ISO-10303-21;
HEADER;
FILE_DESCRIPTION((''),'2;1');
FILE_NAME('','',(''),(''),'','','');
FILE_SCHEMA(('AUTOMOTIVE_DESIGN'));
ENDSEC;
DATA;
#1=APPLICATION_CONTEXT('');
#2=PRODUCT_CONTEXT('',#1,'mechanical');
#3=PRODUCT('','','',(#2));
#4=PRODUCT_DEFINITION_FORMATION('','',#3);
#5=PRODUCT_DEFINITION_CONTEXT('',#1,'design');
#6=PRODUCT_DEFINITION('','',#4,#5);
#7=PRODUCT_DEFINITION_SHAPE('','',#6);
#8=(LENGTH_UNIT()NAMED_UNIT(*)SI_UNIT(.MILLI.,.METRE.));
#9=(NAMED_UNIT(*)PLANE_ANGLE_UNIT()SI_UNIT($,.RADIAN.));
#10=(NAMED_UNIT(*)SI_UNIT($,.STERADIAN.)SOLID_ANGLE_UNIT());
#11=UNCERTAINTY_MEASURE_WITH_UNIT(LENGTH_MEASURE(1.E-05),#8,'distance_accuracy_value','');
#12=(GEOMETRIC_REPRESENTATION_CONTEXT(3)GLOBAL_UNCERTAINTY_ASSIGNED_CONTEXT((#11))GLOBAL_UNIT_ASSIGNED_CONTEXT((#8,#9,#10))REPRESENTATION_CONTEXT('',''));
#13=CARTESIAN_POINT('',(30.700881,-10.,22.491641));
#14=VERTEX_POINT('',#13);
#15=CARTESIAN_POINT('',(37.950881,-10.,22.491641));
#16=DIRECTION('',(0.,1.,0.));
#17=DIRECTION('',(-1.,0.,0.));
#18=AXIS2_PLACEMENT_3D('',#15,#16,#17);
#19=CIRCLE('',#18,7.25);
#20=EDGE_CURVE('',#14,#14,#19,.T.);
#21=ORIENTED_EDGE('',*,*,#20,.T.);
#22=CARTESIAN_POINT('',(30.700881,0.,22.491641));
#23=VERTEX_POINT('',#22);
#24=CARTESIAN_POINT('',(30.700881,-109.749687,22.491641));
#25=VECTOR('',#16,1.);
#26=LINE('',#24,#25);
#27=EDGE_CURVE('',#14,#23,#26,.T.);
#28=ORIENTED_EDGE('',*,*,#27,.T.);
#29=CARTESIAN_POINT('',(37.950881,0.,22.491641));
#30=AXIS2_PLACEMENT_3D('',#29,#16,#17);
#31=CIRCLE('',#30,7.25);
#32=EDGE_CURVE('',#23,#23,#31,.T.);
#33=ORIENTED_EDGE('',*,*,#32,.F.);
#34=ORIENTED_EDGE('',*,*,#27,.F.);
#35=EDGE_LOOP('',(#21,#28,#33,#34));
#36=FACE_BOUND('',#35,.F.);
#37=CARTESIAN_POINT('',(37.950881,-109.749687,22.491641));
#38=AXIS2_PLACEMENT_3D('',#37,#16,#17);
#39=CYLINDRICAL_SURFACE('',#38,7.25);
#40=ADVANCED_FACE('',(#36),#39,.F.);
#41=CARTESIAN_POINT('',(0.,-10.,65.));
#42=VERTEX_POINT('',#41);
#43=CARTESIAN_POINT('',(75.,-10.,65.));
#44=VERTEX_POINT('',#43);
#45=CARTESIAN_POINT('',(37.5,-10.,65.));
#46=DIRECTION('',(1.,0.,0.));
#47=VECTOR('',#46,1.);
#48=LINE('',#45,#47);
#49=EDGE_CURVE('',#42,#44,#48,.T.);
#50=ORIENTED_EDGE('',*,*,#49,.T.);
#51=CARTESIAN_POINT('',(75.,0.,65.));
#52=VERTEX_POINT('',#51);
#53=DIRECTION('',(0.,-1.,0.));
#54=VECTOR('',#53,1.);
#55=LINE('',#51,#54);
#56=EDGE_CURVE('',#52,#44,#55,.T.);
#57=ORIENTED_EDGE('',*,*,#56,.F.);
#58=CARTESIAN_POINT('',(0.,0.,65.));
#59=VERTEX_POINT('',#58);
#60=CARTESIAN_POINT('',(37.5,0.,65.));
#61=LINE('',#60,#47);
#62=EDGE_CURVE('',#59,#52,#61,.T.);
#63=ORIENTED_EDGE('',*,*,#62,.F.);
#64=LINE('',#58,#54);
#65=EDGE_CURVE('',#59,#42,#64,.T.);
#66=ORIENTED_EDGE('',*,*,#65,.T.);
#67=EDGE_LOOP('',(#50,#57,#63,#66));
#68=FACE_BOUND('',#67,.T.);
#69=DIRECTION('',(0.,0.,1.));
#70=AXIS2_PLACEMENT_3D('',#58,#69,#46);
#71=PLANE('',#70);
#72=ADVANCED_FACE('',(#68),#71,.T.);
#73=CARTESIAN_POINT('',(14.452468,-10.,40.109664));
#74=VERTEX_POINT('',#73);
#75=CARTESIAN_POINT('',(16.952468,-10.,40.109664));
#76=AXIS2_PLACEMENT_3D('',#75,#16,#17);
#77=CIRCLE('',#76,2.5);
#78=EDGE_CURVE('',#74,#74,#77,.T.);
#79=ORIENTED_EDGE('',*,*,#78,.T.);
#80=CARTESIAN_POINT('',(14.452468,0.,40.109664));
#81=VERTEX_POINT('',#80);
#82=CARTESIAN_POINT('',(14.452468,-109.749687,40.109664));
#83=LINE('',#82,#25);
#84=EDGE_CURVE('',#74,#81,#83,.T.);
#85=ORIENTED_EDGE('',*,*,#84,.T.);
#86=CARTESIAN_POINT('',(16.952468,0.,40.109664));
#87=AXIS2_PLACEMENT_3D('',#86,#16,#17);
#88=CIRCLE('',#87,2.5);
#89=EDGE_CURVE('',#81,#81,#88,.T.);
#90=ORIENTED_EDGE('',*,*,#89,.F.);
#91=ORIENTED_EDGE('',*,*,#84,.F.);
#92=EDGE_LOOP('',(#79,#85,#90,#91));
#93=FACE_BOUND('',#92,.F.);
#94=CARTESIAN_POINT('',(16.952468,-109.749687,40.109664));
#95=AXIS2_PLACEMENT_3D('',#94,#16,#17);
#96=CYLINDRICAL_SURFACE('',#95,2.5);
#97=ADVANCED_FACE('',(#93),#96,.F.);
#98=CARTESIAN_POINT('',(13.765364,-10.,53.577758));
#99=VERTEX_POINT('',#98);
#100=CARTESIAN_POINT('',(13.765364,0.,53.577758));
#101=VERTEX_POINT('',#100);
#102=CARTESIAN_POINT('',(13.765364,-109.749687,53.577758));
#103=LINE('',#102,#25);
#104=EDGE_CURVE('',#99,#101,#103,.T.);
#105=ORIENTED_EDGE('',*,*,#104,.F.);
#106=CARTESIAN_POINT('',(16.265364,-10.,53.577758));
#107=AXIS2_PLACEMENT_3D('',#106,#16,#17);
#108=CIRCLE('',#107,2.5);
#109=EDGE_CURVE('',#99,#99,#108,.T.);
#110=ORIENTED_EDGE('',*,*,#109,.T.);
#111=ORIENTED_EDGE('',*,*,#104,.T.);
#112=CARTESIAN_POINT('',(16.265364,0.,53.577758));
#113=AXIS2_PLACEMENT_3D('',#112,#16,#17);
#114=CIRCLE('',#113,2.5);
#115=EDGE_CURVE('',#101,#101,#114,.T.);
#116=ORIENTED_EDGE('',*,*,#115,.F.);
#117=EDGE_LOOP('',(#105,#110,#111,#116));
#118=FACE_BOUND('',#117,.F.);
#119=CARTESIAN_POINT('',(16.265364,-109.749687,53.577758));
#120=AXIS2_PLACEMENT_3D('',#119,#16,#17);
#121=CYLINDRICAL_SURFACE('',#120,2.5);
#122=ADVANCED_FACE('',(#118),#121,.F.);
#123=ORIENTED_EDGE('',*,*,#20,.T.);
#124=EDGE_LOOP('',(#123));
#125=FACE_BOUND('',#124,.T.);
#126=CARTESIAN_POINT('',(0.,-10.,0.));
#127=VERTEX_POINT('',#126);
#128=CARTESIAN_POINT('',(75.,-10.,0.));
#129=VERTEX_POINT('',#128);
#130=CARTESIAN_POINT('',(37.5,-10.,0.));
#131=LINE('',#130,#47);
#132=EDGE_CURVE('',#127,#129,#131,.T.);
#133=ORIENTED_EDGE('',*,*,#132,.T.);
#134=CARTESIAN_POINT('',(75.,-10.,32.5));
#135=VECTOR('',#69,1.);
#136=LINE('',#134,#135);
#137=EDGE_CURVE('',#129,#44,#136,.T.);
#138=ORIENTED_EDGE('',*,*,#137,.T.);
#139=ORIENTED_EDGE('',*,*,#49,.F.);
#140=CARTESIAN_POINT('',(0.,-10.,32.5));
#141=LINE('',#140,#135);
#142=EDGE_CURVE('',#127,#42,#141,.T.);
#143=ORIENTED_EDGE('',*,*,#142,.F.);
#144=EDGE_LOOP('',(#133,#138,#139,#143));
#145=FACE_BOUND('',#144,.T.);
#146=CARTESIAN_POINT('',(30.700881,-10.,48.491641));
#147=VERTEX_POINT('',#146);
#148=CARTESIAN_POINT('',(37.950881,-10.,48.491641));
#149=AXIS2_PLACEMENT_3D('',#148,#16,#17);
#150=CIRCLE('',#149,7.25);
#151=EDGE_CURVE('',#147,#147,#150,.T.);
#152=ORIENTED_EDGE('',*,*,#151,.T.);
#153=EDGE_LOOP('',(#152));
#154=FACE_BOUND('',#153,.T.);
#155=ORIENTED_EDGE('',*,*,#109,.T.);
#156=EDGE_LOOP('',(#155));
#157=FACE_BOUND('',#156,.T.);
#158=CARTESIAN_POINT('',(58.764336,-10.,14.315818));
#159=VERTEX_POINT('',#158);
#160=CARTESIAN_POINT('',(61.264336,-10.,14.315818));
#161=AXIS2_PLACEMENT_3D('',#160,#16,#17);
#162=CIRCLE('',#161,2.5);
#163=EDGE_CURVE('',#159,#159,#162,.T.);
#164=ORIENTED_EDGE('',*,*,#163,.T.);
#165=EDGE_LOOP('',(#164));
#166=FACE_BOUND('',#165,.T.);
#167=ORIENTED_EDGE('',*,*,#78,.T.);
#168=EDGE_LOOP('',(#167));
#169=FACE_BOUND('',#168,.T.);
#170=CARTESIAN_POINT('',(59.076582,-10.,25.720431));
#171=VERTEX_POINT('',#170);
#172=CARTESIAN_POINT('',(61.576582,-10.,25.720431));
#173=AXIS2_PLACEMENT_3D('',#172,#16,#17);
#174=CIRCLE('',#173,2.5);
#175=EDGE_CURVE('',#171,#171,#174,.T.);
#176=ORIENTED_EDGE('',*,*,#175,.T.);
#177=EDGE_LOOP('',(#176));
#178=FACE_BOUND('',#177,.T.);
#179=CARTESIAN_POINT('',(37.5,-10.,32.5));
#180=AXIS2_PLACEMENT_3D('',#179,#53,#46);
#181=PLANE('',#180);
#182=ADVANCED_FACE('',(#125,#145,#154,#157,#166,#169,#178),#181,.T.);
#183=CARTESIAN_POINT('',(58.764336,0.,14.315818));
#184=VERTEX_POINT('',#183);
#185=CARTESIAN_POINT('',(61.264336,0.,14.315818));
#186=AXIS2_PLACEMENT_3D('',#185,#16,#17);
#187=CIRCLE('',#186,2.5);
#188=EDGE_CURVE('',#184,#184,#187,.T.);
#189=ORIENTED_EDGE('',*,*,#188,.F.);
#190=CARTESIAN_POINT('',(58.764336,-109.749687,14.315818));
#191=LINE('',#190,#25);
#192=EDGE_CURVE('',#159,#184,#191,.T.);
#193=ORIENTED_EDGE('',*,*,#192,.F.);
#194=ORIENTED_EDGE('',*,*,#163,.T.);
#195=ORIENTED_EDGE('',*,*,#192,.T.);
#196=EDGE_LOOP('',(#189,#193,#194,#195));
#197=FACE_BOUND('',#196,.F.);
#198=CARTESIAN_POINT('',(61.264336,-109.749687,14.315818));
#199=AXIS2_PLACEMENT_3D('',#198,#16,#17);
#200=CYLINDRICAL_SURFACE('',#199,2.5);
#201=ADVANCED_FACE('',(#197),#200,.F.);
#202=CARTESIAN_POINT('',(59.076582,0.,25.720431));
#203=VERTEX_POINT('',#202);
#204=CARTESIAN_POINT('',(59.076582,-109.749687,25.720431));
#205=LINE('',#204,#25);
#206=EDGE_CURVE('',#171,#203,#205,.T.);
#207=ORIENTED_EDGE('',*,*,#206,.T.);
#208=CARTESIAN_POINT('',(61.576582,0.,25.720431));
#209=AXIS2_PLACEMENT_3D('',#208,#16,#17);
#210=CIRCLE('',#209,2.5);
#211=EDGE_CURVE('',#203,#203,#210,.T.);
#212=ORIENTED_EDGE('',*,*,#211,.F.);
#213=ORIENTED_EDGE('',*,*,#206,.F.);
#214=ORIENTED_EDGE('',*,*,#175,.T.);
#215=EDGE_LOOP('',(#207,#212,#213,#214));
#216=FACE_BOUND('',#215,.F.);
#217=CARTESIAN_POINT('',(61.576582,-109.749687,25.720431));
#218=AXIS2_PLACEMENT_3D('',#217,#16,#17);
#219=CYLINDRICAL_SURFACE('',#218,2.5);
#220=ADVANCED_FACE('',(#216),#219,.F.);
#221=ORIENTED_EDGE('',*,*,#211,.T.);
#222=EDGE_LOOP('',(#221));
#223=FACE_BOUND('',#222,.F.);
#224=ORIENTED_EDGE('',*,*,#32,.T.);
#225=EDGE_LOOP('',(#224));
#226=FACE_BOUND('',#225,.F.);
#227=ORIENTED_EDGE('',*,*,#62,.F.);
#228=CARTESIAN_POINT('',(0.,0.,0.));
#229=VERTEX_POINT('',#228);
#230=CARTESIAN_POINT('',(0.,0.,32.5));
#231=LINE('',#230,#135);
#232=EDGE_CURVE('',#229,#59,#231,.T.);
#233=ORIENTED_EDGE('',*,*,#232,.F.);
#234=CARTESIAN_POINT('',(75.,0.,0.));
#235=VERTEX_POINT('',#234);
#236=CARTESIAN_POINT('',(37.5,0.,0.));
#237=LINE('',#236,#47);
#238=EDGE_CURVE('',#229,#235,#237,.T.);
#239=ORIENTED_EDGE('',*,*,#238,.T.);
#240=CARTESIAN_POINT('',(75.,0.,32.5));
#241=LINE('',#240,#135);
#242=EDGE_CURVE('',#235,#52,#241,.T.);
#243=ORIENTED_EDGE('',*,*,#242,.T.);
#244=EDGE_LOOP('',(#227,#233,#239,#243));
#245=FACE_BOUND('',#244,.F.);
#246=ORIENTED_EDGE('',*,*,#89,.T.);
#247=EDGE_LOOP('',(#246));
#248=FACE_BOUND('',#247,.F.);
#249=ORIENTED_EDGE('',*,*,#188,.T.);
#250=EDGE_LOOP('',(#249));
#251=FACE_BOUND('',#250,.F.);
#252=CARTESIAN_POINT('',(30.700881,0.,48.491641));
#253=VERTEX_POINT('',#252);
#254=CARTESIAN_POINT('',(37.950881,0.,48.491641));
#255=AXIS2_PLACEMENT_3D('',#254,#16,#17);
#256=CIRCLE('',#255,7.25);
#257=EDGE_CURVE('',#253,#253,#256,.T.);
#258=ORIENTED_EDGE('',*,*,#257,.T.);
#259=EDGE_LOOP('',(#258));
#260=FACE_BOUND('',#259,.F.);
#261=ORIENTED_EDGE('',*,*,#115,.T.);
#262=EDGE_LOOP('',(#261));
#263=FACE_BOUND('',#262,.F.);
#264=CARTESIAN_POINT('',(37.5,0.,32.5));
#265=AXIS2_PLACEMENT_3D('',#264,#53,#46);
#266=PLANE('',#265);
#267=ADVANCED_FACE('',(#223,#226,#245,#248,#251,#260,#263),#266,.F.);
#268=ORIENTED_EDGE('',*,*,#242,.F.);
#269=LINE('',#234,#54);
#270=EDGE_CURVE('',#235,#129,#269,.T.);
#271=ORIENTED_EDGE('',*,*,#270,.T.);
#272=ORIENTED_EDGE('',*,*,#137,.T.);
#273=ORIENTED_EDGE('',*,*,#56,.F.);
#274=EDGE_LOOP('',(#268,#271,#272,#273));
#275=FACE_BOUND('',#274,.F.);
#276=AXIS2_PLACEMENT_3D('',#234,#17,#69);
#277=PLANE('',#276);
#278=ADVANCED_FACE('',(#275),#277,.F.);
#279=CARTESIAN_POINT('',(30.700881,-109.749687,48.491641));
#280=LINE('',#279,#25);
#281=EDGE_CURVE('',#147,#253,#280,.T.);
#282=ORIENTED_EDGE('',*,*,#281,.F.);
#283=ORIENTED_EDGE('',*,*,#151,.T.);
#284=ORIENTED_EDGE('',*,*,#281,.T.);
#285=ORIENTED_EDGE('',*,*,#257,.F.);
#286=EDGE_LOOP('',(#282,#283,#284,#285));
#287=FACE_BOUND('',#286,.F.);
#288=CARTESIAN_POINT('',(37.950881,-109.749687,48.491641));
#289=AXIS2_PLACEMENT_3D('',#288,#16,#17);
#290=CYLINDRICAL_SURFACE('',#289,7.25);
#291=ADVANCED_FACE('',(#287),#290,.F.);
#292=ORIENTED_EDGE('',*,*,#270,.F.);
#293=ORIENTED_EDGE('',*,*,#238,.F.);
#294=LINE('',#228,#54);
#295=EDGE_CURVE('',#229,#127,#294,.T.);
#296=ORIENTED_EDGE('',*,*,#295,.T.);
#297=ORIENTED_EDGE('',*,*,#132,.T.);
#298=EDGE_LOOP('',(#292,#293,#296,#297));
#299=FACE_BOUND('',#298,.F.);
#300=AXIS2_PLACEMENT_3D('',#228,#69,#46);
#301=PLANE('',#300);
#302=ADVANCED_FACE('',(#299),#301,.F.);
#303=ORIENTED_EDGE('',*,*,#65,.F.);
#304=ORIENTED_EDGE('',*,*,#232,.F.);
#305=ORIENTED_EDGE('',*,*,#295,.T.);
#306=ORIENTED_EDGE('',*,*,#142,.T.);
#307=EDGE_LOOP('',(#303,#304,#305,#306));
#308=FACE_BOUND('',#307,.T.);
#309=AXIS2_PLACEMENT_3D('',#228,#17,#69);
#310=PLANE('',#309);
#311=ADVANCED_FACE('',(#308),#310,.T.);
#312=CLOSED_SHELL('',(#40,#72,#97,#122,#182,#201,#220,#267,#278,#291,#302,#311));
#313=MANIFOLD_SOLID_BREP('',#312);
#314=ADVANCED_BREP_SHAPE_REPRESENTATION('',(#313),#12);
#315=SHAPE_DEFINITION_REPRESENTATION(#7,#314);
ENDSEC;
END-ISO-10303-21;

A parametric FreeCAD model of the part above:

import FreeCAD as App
import Part
import Sketcher
from FreeCAD import Vector

doc = App.newDocument("Part")
body = doc.addObject("PartDesign::Body", "Body")

# Sketch on XZ plane
sketch1 = doc.addObject("Sketcher::SketchObject", "Sketch")
body.addObject(sketch1)
sketch1.AttachmentSupport = (doc.XZ_Plane, [""])
sketch1.MapMode = "FlatFace"
sketch1.addGeometry(Part.LineSegment(Vector(0, 65, 0), Vector(0, 0, 0)), False)
sketch1.addGeometry(Part.LineSegment(Vector(0, 0, 0), Vector(75, 0, 0)), False)
sketch1.addGeometry(Part.LineSegment(Vector(75, 0, 0), Vector(75, 65, 0)), False)
sketch1.addGeometry(Part.LineSegment(Vector(75, 65, 0), Vector(0, 65, 0)), False)
sketch1.addConstraint(Sketcher.Constraint("Coincident", 0, 2, 1, 1))
sketch1.addConstraint(Sketcher.Constraint("Coincident", 1, 2, 2, 1))
sketch1.addConstraint(Sketcher.Constraint("Coincident", 2, 2, 3, 1))
sketch1.addConstraint(Sketcher.Constraint("Coincident", 3, 2, 0, 1))
sketch1.addConstraint(Sketcher.Constraint("Vertical", 0))
sketch1.addConstraint(Sketcher.Constraint("Horizontal", 1))
sketch1.addConstraint(Sketcher.Constraint("Vertical", 2))
sketch1.addConstraint(Sketcher.Constraint("Horizontal", 3))
sketch1.addConstraint(Sketcher.Constraint("Coincident", 0, 2, -1, 1))
sketch1.addConstraint(Sketcher.Constraint("DistanceX", 1, 1, 1, 2, 75.0))
sketch1.addConstraint(Sketcher.Constraint("DistanceY", 0, 2, 0, 1, 65.0))
pad1 = doc.addObject("PartDesign::Pad", "Pad")
body.addObject(pad1)
pad1.Profile = sketch1
pad1.Length = 10

# Sketch on XZ plane
sketch2 = doc.addObject("Sketcher::SketchObject", "Sketch001")
body.addObject(sketch2)
sketch2.AttachmentSupport = (doc.XZ_Plane, [""])
sketch2.MapMode = "FlatFace"
sketch2.AttachmentOffset = App.Placement(Vector(0, 0, 10), App.Rotation())
sketch2.addGeometry(Part.Circle(Vector(37.950881, 48.491641, 0), Vector(0, 0, 1), 7.25), False)
sketch2.addGeometry(Part.Circle(Vector(37.950881, 22.491641, 0), Vector(0, 0, 1), 7.25), False)
sketch2.addConstraint(Sketcher.Constraint("Equal", 0, 1))
sketch2.addConstraint(Sketcher.Constraint("Vertical", 0, 3, 1, 3))
sketch2.addConstraint(Sketcher.Constraint("Diameter", 0, 14.5))
sketch2.addConstraint(Sketcher.Constraint("DistanceY", 1, 3, 0, 3, 26.0))
sketch2.addConstraint(Sketcher.Constraint("DistanceX", -1, 1, 0, 3, 37.950881))
sketch2.addConstraint(Sketcher.Constraint("DistanceY", -1, 1, 0, 3, 48.491641))
doc.recompute()
hole = doc.addObject("PartDesign::Hole", "Hole")
body.addObject(hole)
hole.Profile = sketch2
hole.ThreadType = "None"
hole.Diameter = 14.5
hole.DepthType = "ThroughAll"

# Sketch on XZ plane
sketch3 = doc.addObject("Sketcher::SketchObject", "Sketch002")
body.addObject(sketch3)
sketch3.AttachmentSupport = (doc.XZ_Plane, [""])
sketch3.MapMode = "FlatFace"
sketch3.AttachmentOffset = App.Placement(Vector(0, 0, 10), App.Rotation())
sketch3.addGeometry(Part.Circle(Vector(16.265364, 53.577758, 0), Vector(0, 0, 1), 2.5), False)
sketch3.addGeometry(Part.Circle(Vector(16.952468, 40.109664, 0), Vector(0, 0, 1), 2.5), False)
sketch3.addGeometry(Part.Circle(Vector(61.576582, 25.720431, 0), Vector(0, 0, 1), 2.5), False)
sketch3.addGeometry(Part.Circle(Vector(61.264336, 14.315818, 0), Vector(0, 0, 1), 2.5), False)
sketch3.addConstraint(Sketcher.Constraint("Equal", 0, 1))
sketch3.addConstraint(Sketcher.Constraint("Equal", 1, 2))
sketch3.addConstraint(Sketcher.Constraint("Equal", 2, 3))
sketch3.addConstraint(Sketcher.Constraint("Diameter", 0, 5.0))
sketch3.addConstraint(Sketcher.Constraint("DistanceY", -1, 1, 0, 3, 53.577758))
sketch3.addConstraint(Sketcher.Constraint("DistanceY", -1, 1, 2, 3, 25.720431))
sketch3.addConstraint(Sketcher.Constraint("DistanceX", 1, 3, 3, 3, 44.311868))
sketch3.addConstraint(Sketcher.Constraint("DistanceX", 0, 3, 3, 3, 44.998972))
sketch3.addConstraint(Sketcher.Constraint("DistanceY", 3, 3, 0, 3, 39.26194))
sketch3.addConstraint(Sketcher.Constraint("DistanceX", -1, 1, 0, 3, 16.265364))
sketch3.addConstraint(Sketcher.Constraint("DistanceY", -1, 1, 1, 3, 40.109664))
sketch3.addConstraint(Sketcher.Constraint("DistanceX", -1, 1, 2, 3, 61.576582))
doc.recompute()
hole2 = doc.addObject("PartDesign::Hole", "Hole001")
body.addObject(hole2)
hole2.Profile = sketch3
hole2.ThreadType = "None"
hole2.Diameter = 5
hole2.DepthType = "ThroughAll"

doc.recompute()
